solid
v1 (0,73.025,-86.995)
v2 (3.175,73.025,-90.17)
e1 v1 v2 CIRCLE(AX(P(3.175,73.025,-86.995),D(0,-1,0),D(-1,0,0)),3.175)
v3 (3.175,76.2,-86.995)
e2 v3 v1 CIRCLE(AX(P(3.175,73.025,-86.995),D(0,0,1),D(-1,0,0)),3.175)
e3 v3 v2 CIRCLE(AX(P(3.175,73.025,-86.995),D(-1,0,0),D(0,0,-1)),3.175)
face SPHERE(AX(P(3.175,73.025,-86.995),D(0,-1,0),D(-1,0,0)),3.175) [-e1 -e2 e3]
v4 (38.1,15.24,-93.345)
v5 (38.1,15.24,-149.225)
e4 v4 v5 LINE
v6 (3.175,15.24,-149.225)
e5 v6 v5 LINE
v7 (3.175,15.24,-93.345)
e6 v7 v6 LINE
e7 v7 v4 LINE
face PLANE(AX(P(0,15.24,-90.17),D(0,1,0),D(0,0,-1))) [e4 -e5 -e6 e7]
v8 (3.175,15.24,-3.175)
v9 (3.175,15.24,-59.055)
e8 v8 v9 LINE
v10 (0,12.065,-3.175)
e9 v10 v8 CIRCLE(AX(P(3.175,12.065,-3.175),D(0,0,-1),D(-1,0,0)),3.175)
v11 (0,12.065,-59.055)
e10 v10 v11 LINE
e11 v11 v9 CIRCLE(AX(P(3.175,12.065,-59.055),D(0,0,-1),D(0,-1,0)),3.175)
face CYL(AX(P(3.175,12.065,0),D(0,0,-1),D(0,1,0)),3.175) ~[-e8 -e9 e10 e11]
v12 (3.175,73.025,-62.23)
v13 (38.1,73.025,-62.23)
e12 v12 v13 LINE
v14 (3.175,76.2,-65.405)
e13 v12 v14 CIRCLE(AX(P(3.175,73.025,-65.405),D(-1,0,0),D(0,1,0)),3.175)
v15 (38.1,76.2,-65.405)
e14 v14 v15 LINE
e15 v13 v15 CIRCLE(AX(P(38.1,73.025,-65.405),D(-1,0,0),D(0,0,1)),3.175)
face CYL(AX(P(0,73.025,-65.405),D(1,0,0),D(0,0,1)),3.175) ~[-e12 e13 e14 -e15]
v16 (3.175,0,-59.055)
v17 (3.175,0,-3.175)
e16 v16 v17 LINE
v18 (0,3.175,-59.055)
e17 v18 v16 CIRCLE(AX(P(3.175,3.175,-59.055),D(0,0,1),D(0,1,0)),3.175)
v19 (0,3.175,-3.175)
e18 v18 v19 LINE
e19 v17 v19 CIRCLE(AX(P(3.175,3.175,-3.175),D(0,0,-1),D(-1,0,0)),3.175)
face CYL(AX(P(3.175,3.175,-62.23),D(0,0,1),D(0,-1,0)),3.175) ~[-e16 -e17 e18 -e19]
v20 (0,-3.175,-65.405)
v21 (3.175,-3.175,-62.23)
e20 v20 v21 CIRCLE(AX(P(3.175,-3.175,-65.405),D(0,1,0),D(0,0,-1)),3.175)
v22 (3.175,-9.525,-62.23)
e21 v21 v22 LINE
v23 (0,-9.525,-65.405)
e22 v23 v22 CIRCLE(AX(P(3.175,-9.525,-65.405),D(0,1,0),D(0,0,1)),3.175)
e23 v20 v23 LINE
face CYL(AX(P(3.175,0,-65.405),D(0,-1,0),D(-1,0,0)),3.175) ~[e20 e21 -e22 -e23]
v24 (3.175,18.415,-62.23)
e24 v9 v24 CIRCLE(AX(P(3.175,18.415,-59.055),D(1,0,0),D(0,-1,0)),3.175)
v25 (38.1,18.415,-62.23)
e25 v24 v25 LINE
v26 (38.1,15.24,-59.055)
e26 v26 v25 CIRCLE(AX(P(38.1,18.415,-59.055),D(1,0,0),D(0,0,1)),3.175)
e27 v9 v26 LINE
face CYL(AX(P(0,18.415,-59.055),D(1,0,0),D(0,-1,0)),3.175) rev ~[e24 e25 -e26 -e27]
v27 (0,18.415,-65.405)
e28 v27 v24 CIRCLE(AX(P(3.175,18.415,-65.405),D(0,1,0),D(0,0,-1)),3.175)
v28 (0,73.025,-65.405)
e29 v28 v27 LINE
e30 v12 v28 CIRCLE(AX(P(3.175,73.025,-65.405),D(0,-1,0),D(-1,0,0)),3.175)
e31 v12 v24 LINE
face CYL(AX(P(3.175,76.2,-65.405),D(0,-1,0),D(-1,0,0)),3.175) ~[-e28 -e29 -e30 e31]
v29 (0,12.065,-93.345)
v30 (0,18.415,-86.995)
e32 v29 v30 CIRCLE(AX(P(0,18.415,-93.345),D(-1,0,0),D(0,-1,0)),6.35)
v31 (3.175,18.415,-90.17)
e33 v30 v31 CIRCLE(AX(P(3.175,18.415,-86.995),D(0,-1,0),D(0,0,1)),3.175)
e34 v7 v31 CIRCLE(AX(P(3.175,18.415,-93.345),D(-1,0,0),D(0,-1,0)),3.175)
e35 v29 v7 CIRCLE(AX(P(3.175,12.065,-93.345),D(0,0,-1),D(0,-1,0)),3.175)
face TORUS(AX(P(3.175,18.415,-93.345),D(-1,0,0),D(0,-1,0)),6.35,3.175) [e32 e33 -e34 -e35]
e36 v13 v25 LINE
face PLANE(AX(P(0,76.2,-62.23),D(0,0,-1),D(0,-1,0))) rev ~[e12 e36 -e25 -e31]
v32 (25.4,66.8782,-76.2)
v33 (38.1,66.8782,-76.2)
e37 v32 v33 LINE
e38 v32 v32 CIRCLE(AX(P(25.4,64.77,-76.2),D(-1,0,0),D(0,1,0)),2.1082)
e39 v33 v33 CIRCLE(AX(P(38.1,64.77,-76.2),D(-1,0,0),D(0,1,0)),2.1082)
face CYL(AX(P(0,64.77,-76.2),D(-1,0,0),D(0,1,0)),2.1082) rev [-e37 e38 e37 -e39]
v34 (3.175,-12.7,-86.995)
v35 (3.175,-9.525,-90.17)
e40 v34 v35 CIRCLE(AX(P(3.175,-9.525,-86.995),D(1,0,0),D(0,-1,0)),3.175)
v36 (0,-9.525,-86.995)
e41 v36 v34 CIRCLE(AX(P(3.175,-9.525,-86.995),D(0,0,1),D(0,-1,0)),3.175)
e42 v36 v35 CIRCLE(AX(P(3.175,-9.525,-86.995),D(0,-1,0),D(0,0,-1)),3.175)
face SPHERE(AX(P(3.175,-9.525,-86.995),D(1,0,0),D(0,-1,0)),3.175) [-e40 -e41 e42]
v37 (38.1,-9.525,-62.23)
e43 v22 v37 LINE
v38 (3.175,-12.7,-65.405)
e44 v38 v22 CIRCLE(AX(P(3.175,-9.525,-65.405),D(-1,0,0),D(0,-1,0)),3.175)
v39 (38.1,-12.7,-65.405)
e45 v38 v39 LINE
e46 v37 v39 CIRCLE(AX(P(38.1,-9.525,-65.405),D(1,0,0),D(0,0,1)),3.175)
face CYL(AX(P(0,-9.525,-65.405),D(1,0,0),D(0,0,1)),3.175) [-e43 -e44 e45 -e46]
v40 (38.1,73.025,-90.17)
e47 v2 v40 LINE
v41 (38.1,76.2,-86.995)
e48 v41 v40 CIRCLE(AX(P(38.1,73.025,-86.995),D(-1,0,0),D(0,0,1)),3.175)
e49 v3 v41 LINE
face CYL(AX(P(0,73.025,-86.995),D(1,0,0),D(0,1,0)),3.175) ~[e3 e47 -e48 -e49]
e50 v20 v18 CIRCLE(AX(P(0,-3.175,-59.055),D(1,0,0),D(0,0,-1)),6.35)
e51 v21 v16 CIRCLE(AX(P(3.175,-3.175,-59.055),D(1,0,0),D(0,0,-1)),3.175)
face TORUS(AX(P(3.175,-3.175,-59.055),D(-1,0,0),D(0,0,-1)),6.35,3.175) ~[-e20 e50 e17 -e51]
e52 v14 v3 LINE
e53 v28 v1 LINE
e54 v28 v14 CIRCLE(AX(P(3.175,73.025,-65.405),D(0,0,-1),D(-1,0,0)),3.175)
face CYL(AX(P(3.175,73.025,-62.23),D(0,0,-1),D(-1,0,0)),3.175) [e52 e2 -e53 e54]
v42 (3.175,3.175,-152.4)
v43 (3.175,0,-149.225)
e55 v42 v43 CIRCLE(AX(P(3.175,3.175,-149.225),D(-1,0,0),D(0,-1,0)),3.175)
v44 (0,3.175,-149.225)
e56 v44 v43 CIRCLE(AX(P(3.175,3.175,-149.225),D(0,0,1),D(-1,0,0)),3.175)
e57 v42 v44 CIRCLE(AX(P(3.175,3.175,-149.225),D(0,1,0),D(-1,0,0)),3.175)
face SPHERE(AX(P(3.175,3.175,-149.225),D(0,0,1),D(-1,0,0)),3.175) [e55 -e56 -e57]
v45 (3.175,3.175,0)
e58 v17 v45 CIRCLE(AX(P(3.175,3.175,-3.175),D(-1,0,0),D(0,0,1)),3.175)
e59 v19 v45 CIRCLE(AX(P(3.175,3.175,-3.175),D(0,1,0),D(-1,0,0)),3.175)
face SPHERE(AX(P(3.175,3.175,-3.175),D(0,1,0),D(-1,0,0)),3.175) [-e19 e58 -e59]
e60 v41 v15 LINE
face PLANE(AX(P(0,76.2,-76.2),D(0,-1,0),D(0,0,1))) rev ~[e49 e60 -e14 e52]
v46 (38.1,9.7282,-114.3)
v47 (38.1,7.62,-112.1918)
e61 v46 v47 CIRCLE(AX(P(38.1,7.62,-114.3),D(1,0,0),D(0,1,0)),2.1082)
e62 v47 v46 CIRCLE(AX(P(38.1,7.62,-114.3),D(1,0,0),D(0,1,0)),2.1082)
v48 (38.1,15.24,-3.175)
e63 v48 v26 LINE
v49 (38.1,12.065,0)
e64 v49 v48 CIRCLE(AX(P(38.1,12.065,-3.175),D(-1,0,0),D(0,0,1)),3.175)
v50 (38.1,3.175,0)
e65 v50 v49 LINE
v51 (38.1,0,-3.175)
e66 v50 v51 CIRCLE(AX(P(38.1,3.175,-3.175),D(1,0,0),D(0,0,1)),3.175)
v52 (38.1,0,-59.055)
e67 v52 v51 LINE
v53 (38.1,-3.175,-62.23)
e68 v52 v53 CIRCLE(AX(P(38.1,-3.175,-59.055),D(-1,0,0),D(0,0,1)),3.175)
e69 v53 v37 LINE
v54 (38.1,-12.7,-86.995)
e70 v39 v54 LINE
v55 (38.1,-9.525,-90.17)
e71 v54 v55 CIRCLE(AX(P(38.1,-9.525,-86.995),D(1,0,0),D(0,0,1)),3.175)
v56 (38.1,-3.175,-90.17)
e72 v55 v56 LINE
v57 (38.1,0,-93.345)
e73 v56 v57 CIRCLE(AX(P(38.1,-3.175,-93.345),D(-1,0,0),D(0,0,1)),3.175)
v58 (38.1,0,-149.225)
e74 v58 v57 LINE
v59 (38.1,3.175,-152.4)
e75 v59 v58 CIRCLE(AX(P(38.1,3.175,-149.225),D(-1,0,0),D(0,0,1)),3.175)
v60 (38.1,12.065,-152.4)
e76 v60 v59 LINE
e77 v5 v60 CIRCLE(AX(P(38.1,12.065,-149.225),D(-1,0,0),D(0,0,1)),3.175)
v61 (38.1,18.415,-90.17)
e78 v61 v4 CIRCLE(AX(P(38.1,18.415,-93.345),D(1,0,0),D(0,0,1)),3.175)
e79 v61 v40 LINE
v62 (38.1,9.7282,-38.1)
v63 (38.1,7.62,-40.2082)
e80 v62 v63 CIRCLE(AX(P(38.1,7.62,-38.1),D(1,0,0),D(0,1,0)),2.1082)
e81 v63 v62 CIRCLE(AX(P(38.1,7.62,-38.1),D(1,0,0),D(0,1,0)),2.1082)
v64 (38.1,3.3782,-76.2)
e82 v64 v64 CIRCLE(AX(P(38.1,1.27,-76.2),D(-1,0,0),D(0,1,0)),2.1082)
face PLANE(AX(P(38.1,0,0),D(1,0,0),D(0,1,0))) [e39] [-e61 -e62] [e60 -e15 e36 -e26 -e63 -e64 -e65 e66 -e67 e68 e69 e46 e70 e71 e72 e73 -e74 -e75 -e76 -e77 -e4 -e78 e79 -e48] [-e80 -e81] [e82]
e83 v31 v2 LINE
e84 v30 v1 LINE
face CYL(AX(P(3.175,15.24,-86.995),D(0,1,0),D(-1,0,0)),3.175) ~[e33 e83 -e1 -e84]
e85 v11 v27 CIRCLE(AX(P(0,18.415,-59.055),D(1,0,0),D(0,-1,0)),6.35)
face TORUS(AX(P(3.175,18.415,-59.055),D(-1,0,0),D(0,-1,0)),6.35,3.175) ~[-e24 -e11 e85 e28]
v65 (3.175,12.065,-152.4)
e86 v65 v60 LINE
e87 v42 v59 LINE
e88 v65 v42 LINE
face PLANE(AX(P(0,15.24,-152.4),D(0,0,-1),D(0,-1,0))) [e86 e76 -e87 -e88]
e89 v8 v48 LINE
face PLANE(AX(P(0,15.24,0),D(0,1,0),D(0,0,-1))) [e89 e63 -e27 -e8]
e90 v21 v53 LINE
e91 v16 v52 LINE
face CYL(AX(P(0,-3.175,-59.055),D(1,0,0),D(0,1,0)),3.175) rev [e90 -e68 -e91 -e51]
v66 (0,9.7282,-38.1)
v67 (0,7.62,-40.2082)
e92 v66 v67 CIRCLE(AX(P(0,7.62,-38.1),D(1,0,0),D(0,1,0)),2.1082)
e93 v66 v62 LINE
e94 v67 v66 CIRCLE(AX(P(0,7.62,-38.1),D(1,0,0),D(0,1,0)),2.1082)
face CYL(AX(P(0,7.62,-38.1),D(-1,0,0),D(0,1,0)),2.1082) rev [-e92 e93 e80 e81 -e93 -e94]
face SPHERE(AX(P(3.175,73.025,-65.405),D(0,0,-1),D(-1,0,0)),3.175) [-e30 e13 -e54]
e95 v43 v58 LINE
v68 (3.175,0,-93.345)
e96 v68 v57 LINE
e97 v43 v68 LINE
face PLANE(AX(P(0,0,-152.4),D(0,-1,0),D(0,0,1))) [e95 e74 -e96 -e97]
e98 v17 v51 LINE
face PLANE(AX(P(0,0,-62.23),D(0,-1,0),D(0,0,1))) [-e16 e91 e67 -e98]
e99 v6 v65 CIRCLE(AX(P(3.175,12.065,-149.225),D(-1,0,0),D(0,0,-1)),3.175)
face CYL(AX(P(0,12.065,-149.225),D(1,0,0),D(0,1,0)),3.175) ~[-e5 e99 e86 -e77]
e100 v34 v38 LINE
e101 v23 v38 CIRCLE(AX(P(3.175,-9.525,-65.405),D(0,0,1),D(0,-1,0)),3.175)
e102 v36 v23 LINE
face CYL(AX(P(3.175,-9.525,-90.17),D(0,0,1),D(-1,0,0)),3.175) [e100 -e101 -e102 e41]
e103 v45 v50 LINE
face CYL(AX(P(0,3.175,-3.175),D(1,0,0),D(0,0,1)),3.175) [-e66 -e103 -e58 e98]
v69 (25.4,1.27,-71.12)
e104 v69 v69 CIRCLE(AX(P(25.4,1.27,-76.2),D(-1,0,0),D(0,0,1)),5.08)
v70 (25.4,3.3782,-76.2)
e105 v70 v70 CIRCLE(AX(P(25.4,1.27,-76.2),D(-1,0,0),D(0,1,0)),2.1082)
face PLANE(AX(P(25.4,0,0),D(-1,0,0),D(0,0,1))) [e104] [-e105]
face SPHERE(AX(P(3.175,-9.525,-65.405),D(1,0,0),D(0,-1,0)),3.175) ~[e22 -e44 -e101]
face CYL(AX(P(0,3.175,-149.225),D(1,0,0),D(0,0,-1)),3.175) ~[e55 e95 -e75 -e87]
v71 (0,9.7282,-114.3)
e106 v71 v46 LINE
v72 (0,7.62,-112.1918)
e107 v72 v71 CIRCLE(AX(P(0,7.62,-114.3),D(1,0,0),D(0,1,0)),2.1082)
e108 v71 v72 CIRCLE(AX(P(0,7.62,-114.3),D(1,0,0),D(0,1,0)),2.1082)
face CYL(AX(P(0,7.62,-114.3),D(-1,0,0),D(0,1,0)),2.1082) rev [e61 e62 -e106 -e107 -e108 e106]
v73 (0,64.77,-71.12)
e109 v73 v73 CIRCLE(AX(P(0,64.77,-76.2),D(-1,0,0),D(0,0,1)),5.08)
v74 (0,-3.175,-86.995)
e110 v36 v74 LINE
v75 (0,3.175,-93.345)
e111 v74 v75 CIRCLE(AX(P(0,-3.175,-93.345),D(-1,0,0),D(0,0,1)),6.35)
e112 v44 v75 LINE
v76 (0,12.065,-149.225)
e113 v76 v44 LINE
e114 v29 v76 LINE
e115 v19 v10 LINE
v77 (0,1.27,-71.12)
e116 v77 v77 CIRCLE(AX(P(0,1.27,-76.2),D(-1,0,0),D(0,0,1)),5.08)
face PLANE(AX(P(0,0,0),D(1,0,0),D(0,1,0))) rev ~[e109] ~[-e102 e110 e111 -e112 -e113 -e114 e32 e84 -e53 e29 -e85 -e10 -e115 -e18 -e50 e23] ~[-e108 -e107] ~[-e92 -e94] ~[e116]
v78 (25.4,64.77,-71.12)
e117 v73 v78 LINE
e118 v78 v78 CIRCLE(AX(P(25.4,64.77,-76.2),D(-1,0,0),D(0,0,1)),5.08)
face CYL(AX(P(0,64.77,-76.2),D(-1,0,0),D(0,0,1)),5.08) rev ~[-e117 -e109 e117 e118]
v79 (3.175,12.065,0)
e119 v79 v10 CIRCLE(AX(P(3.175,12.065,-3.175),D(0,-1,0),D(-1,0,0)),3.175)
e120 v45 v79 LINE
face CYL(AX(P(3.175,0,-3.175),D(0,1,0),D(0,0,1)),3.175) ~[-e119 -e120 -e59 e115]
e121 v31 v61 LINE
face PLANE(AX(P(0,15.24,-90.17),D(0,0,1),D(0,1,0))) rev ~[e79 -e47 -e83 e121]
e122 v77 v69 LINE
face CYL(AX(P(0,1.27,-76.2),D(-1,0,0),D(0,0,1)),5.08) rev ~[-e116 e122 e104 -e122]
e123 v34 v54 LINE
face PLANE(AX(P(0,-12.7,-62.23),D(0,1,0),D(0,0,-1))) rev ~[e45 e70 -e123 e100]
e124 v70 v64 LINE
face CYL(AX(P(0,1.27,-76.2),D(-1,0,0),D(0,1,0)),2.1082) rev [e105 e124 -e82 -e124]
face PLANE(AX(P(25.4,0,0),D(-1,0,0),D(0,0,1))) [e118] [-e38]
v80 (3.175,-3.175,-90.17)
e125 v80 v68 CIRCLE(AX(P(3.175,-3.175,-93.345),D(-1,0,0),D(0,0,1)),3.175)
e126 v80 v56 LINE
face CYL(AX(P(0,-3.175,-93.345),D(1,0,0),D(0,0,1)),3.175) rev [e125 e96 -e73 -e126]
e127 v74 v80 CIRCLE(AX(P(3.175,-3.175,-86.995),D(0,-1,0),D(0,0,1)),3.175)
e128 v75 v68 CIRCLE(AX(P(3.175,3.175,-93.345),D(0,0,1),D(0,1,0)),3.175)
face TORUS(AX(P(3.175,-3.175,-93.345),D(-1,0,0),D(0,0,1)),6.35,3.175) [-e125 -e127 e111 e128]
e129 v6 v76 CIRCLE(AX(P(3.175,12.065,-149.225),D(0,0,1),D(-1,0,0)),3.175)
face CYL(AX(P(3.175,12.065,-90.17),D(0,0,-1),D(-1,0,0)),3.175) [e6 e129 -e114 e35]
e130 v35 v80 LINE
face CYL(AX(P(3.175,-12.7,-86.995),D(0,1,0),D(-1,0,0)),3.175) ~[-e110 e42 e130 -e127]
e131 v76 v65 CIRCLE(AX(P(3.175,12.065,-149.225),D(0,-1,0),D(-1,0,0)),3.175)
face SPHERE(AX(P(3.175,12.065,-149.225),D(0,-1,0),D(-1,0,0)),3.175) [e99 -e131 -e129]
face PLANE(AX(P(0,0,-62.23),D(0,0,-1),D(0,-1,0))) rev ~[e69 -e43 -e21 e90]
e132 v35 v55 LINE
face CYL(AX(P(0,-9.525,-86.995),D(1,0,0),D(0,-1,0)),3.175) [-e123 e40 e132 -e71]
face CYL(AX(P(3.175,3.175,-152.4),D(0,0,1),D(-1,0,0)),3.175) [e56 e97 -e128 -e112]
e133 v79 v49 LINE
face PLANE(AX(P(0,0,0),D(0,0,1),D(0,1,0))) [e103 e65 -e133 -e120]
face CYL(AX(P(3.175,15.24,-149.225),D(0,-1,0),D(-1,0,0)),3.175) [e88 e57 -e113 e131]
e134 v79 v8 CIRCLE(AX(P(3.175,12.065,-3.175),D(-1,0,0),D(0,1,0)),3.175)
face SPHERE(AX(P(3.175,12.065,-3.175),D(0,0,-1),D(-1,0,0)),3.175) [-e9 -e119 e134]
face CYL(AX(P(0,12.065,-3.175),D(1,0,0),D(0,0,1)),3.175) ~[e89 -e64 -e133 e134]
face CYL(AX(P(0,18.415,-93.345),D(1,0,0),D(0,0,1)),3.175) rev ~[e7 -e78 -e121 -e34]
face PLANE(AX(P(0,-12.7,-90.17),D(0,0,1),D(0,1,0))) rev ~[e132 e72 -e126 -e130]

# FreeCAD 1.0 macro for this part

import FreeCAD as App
import Part
import Sketcher
from FreeCAD import Vector
Q = App.Units.Quantity


def edges_at(feature, points):
    """Names of the edges that pass closest to the given points."""
    edges = feature.Shape.Edges
    near = lambda p: min(range(len(edges)), key=lambda i: edges[i].distToShape(Part.Vertex(*p))[0])
    return sorted({f"Edge{near(p) + 1}" for p in points})


def add_polygon(sketch, points):
    """Adds a closed chain of lines whose ends are joined by coincident constraints."""
    first, n = sketch.GeometryCount, len(points)
    for a, b in zip(points, points[1:] + points[:1]):
        sketch.addGeometry(Part.LineSegment(App.Vector(*a, 0), App.Vector(*b, 0)), False)
    for i in range(n):
        sketch.addConstraint(Sketcher.Constraint("Coincident", first + i, 2, first + (i + 1) % n, 1))

doc = App.newDocument("Part")
params = doc.addObject("Spreadsheet::Sheet", "Params")
for row, (alias, value) in enumerate([
    ("sketch1_diameter", "0.166 in"),
    ("sketch1_width", "0.6 in"),
    ("sketch1_width2", "0.5 in"),
    ("sketch1_height", "1.1 in"),
    ("pad1_length", "1.5 in"),
    ("fillet_radius", "0.125 in"),
    ("sketch2_diameter", "0.4 in"),
    ("sketch2_diameter2", "0.166 in"),
    ("pocket1_length", "1 in"),
], start=1):
    params.set(f"A{row}", alias)
    params.set(f"B{row}", "=" + value)
    params.setAlias(f"B{row}", alias)

body = doc.addObject("PartDesign::Body", "Body")

# Sketch on YZ plane
sketch1 = doc.addObject("Sketcher::SketchObject", "Sketch")
body.addObject(sketch1)
sketch1.AttachmentSupport = (doc.YZ_Plane, [""])
sketch1.MapMode = "FlatFace"
add_polygon(sketch1, [(15.2, 0), (0, 0), (0, -62.2), (-12.7, -62.2), (-12.7, -90.2), (0, -90.2), (0, -152.4), (15.2, -152.4), (15.2, -90.2), (76.2, -90.2), (76.2, -62.2), (15.2, -62.2)])  # lines 0-11
sketch1.addGeometry(Part.Circle(Vector(7.6, -38.1, 0), Vector(0, 0, 1), 2.1), False)  # 12
sketch1.addGeometry(Part.Circle(Vector(1.3, -76.2, 0), Vector(0, 0, 1), 2.1), False)  # 13
sketch1.addGeometry(Part.Circle(Vector(64.8, -76.2, 0), Vector(0, 0, 1), 2.1), False)  # 14
sketch1.addGeometry(Part.Circle(Vector(7.6, -114.3, 0), Vector(0, 0, 1), 2.1), False)  # 15
sketch1.addConstraint(Sketcher.Constraint("Horizontal", 0))
sketch1.addConstraint(Sketcher.Constraint("Vertical", 1))
sketch1.addConstraint(Sketcher.Constraint("Horizontal", 2))
sketch1.addConstraint(Sketcher.Constraint("Vertical", 3))
sketch1.addConstraint(Sketcher.Constraint("Horizontal", 4))
sketch1.addConstraint(Sketcher.Constraint("Vertical", 5))
sketch1.addConstraint(Sketcher.Constraint("Horizontal", 6))
sketch1.addConstraint(Sketcher.Constraint("Vertical", 7))
sketch1.addConstraint(Sketcher.Constraint("Horizontal", 8))
sketch1.addConstraint(Sketcher.Constraint("Vertical", 9))
sketch1.addConstraint(Sketcher.Constraint("Horizontal", 10))
sketch1.addConstraint(Sketcher.Constraint("Vertical", 11))
sketch1.addConstraint(Sketcher.Constraint("Coincident", 0, 2, -1, 1))
sketch1.addConstraint(Sketcher.Constraint("Equal", 12, 13))
sketch1.addConstraint(Sketcher.Constraint("Equal", 13, 14))
sketch1.addConstraint(Sketcher.Constraint("Equal", 14, 15))
sketch1.addConstraint(Sketcher.Constraint("PointOnObject", 4, 2, -2))
sketch1.addConstraint(Sketcher.Constraint("Horizontal", 13, 3, 14, 3))
sketch1.addConstraint(Sketcher.Constraint("Horizontal", 4, 2, 7, 2))
sketch1.addConstraint(Sketcher.Constraint("Horizontal", 2, 2, 9, 2))
sketch1.addConstraint(Sketcher.Constraint("Vertical", 12, 3, 15, 3))
sketch1.addConstraint(Sketcher.Constraint("Vertical", 7, 2, 10, 2))
sketch1.addConstraint(Sketcher.Constraint("Equal", 1, 5))
sketch1.addConstraint(Sketcher.Constraint("Diameter", 12, Q("0.166 in")))
sketch1.addConstraint(Sketcher.Constraint("DistanceX", 0, 2, 0, 1, Q("0.6 in")))
sketch1.addConstraint(Sketcher.Constraint("DistanceX", 2, 2, 2, 1, Q("0.5 in")))
sketch1.addConstraint(Sketcher.Constraint("DistanceY", 3, 2, 3, 1, Q("1.1 in")))
sketch1.addConstraint(Sketcher.Constraint("DistanceY", 13, 3, -1, 1, Q("3 in")))
sketch1.addConstraint(Sketcher.Constraint("DistanceY", 5, 2, -1, 1, Q("6 in")))
sketch1.addConstraint(Sketcher.Constraint("DistanceX", -1, 1, 8, 2, Q("3 in")))
sketch1.addConstraint(Sketcher.Constraint("DistanceY", 15, 3, 12, 3, Q("3 in")))
sketch1.addConstraint(Sketcher.Constraint("DistanceY", 12, 3, -1, 1, Q("1.5 in")))
sketch1.addConstraint(Sketcher.Constraint("DistanceX", 2, 2, 13, 3, Q("0.55 in")))
sketch1.addConstraint(Sketcher.Constraint("DistanceX", 14, 3, 8, 2, Q("0.45 in")))
sketch1.addConstraint(Sketcher.Constraint("DistanceX", -1, 1, 12, 3, Q("0.3 in")))
sketch1.setExpression("Constraints[35]", "Params.sketch1_diameter")
sketch1.setExpression("Constraints[36]", "Params.sketch1_width")
sketch1.setExpression("Constraints[37]", "Params.sketch1_width2")
sketch1.setExpression("Constraints[38]", "Params.sketch1_height")
pad1 = doc.addObject("PartDesign::Pad", "Pad")
body.addObject(pad1)
pad1.Profile = sketch1
pad1.setExpression("Length", "Params.pad1_length")
doc.recompute()

fillet = doc.addObject("PartDesign::Fillet", "Fillet")
body.addObject(fillet)
fillet.Base = (pad1, edges_at(pad1, [
    (0, 15.24, -31.115),
    (0, 7.62, 0),
    (0, 0, -121.285),
    (0, 0, -31.115),
    (0, 7.62, -152.4),
    (0, 15.24, -121.285),
    (0, 45.72, -90.17),
    (0, 76.2, -83.185),
    (0, 45.72, -62.23),
    (19.05, 15.24, 0),
    (19.05, 76.2, -62.23),
    (19.05, 15.24, -62.23),
    (19.05, 76.2, -90.17),
    (19.05, 15.24, -90.17),
    (19.05, 15.24, -152.4),
    (19.05, 0, -152.4),
    (19.05, 0, 0),
    (19.05, 0, -62.23),
    (19.05, -12.7, -62.23),
    (19.05, -12.7, -90.17),
    (19.05, 0, -90.17),
    (0, -12.7, -76.2),
    (0, -6.35, -62.23),
    (0, -6.35, -90.17),
]))
fillet.setExpression("Radius", "Params.fillet_radius")

# Sketch on YZ plane
sketch2 = doc.addObject("Sketcher::SketchObject", "Sketch001")
body.addObject(sketch2)
sketch2.AttachmentSupport = (doc.YZ_Plane, [""])
sketch2.MapMode = "FlatFace"
sketch2.addGeometry(Part.Circle(Vector(1.3, -76.2, 0), Vector(0, 0, 1), 5.1), False)
sketch2.addGeometry(Part.Circle(Vector(1.3, -76.2, 0), Vector(0, 0, 1), 2.1), False)
sketch2.addGeometry(Part.Circle(Vector(64.8, -76.2, 0), Vector(0, 0, 1), 5.1), False)
sketch2.addGeometry(Part.Circle(Vector(64.8, -76.2, 0), Vector(0, 0, 1), 2.1), False)
sketch2.addConstraint(Sketcher.Constraint("Coincident", 1, 3, 0, 3))
sketch2.addConstraint(Sketcher.Constraint("Coincident", 3, 3, 2, 3))
sketch2.addConstraint(Sketcher.Constraint("Equal", 0, 2))
sketch2.addConstraint(Sketcher.Constraint("Equal", 1, 3))
sketch2.addConstraint(Sketcher.Constraint("Horizontal", 1, 3, 2, 3))
sketch2.addConstraint(Sketcher.Constraint("Diameter", 0, Q("0.4 in")))
sketch2.addConstraint(Sketcher.Constraint("Diameter", 1, Q("0.166 in")))
sketch2.addConstraint(Sketcher.Constraint("DistanceY", 0, 3, -1, 1, Q("3 in")))
sketch2.addConstraint(Sketcher.Constraint("DistanceX", 0, 3, 2, 3, Q("2.5 in")))
sketch2.addConstraint(Sketcher.Constraint("DistanceX", -1, 1, 0, 3, Q("0.05 in")))
sketch2.setExpression("Constraints[5]", "Params.sketch2_diameter")
sketch2.setExpression("Constraints[6]", "Params.sketch2_diameter2")
pocket1 = doc.addObject("PartDesign::Pocket", "Pocket")
body.addObject(pocket1)
pocket1.Profile = sketch2
pocket1.setExpression("Length", "Params.pocket1_length")
pocket1.Reversed = True

doc.recompute()
